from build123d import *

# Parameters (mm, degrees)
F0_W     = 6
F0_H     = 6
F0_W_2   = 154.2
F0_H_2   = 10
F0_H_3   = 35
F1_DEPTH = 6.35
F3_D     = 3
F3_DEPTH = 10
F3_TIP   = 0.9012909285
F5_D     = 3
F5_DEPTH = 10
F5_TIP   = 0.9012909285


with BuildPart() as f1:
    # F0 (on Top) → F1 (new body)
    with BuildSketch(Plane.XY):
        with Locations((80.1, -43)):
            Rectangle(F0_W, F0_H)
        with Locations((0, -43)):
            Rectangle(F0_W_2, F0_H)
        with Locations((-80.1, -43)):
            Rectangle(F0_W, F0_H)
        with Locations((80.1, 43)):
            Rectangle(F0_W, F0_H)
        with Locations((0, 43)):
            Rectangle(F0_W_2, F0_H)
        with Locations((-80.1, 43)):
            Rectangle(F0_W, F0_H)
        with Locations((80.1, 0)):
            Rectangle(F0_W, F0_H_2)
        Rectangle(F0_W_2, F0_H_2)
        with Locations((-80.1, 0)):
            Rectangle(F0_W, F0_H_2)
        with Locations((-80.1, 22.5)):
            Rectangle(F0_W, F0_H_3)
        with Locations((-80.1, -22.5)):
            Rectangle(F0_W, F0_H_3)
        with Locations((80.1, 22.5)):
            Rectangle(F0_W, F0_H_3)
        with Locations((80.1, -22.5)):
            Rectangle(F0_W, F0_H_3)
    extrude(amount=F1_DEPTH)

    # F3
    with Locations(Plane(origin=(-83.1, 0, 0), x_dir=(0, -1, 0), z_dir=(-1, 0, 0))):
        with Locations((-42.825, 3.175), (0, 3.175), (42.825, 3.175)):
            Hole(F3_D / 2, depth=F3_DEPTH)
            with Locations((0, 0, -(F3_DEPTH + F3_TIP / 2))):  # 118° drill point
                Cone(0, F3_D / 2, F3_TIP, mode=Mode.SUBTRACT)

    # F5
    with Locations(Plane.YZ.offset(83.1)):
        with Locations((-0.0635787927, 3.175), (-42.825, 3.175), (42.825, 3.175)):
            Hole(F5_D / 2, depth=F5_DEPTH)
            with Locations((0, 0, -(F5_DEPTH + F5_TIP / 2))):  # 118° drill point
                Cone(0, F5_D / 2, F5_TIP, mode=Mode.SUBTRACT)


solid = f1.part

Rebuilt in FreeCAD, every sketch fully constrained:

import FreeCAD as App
import Part
import Sketcher
from FreeCAD import Vector
Q = App.Units.Quantity


def add_polygon(sketch, points):
    """Adds a closed chain of lines whose ends are joined by coincident constraints."""
    first, n = sketch.GeometryCount, len(points)
    for a, b in zip(points, points[1:] + points[:1]):
        sketch.addGeometry(Part.LineSegment(App.Vector(*a, 0), App.Vector(*b, 0)), False)
    for i in range(n):
        sketch.addConstraint(Sketcher.Constraint("Coincident", first + i, 2, first + (i + 1) % n, 1))

doc = App.newDocument("Part")
params = doc.addObject("Spreadsheet::Sheet", "Params")
for row, (alias, value) in enumerate([
    ("sketch1_height", "92 mm"),
    ("sketch1_height2", "35 mm"),
    ("sketch1_width", "166.2 mm"),
    ("sketch1_width2", "154.2 mm"),
    ("pad1_length", "6.35 mm"),
    ("sketch2_diameter", "3 mm"),
    ("hole_diameter", "3 mm"),
    ("hole_depth", "10 mm"),
    ("sketch3_diameter", "3 mm"),
    ("hole2_diameter", "3 mm"),
    ("hole2_depth", "10 mm"),
], start=1):
    params.set(f"A{row}", alias)
    params.set(f"B{row}", "=" + value)
    params.setAlias(f"B{row}", alias)

body = doc.addObject("PartDesign::Body", "Body")

sketch1 = doc.addObject("Sketcher::SketchObject", "Sketch")
body.addObject(sketch1)
sketch1.AttachmentSupport = (doc.XY_Plane, [""])
sketch1.MapMode = "FlatFace"
add_polygon(sketch1, [(83, -46), (83, 46), (-83, 46), (-83, -46)])
add_polygon(sketch1, [(77, -40), (-77, -40), (-77, -5), (77, -5)])
add_polygon(sketch1, [(77, 5), (-77, 5), (-77, 40), (77, 40)])
sketch1.addConstraint(Sketcher.Constraint("Vertical", 0))
sketch1.addConstraint(Sketcher.Constraint("Horizontal", 1))
sketch1.addConstraint(Sketcher.Constraint("Vertical", 2))
sketch1.addConstraint(Sketcher.Constraint("Horizontal", 3))
sketch1.addConstraint(Sketcher.Constraint("Horizontal", 4))
sketch1.addConstraint(Sketcher.Constraint("Vertical", 5))
sketch1.addConstraint(Sketcher.Constraint("Horizontal", 6))
sketch1.addConstraint(Sketcher.Constraint("Vertical", 7))
sketch1.addConstraint(Sketcher.Constraint("Horizontal", 8))
sketch1.addConstraint(Sketcher.Constraint("Vertical", 9))
sketch1.addConstraint(Sketcher.Constraint("Horizontal", 10))
sketch1.addConstraint(Sketcher.Constraint("Vertical", 11))
sketch1.addConstraint(Sketcher.Constraint("Symmetric", 0, 2, 2, 2, -1, 1))
sketch1.addConstraint(Sketcher.Constraint("Symmetric", 6, 2, 8, 2, -1, 1))
sketch1.addConstraint(Sketcher.Constraint("Symmetric", 4, 2, 10, 2, -1, 1))
sketch1.addConstraint(Sketcher.Constraint("Vertical", 5, 2, 8, 2))
sketch1.addConstraint(Sketcher.Constraint("DistanceY", 0, 1, 0, 2, Q("92 mm")))
sketch1.addConstraint(Sketcher.Constraint("DistanceY", 5, 1, 5, 2, Q("35 mm")))
sketch1.addConstraint(Sketcher.Constraint("DistanceX", 1, 2, 1, 1, Q("166.2 mm")))
sketch1.addConstraint(Sketcher.Constraint("DistanceX", 4, 2, 4, 1, Q("154.2 mm")))
sketch1.addConstraint(Sketcher.Constraint("DistanceY", 4, 2, -1, 1, Q("40 mm")))
sketch1.setExpression("Constraints[28]", "Params.sketch1_height")
sketch1.setExpression("Constraints[29]", "Params.sketch1_height2")
sketch1.setExpression("Constraints[30]", "Params.sketch1_width")
sketch1.setExpression("Constraints[31]", "Params.sketch1_width2")
pad1 = doc.addObject("PartDesign::Pad", "Pad")
body.addObject(pad1)
pad1.Profile = sketch1
pad1.setExpression("Length", "Params.pad1_length")

sketch2 = doc.addObject("Sketcher::SketchObject", "Sketch001")
body.addObject(sketch2)
sketch2.AttachmentSupport = (doc.YZ_Plane, [""])
sketch2.MapMode = "FlatFace"
sketch2.AttachmentOffset = App.Placement(Vector(0, 0, -83.1), App.Rotation())
sketch2.addGeometry(Part.Circle(Vector(42.8, 3.2, 0), Vector(0, 0, 1), 1.5), False)
sketch2.addGeometry(Part.Circle(Vector(0, 3.2, 0), Vector(0, 0, 1), 1.5), False)
sketch2.addGeometry(Part.Circle(Vector(-42.8, 3.2, 0), Vector(0, 0, 1), 1.5), False)
sketch2.addConstraint(Sketcher.Constraint("Equal", 0, 1))
sketch2.addConstraint(Sketcher.Constraint("Equal", 1, 2))
sketch2.addConstraint(Sketcher.Constraint("Symmetric", 0, 3, 2, 3, -2))
sketch2.addConstraint(Sketcher.Constraint("PointOnObject", 1, 3, -2))
sketch2.addConstraint(Sketcher.Constraint("Horizontal", 0, 3, 1, 3))
sketch2.addConstraint(Sketcher.Constraint("Diameter", 0, Q("3 mm")))
sketch2.addConstraint(Sketcher.Constraint("DistanceX", 2, 3, 0, 3, Q("85.65 mm")))
sketch2.addConstraint(Sketcher.Constraint("DistanceY", -1, 1, 0, 3, Q("3.175 mm")))
sketch2.setExpression("Constraints[5]", "Params.sketch2_diameter")
doc.recompute()
hole = doc.addObject("PartDesign::Hole", "Hole")
body.addObject(hole)
hole.Profile = sketch2
hole.ThreadType = "None"
hole.setExpression("Diameter", "Params.hole_diameter")
hole.DepthType = "Dimension"
hole.setExpression("Depth", "Params.hole_depth")
hole.DrillPoint = "Angled"
hole.DrillPointAngle = 118
hole.Reversed = True

sketch3 = doc.addObject("Sketcher::SketchObject", "Sketch002")
body.addObject(sketch3)
sketch3.AttachmentSupport = (doc.YZ_Plane, [""])
sketch3.MapMode = "FlatFace"
sketch3.AttachmentOffset = App.Placement(Vector(0, 0, 83.1), App.Rotation())
sketch3.addGeometry(Part.Circle(Vector(-0.1, 3.2, 0), Vector(0, 0, 1), 1.5), False)
sketch3.addGeometry(Part.Circle(Vector(-42.8, 3.2, 0), Vector(0, 0, 1), 1.5), False)
sketch3.addGeometry(Part.Circle(Vector(42.8, 3.2, 0), Vector(0, 0, 1), 1.5), False)
sketch3.addConstraint(Sketcher.Constraint("Equal", 0, 1))
sketch3.addConstraint(Sketcher.Constraint("Equal", 1, 2))
sketch3.addConstraint(Sketcher.Constraint("Symmetric", 1, 3, 2, 3, -2))
sketch3.addConstraint(Sketcher.Constraint("Horizontal", 0, 3, 1, 3))
sketch3.addConstraint(Sketcher.Constraint("Diameter", 0, Q("3 mm")))
sketch3.addConstraint(Sketcher.Constraint("DistanceX", 1, 3, 2, 3, Q("85.65 mm")))
sketch3.addConstraint(Sketcher.Constraint("DistanceY", -1, 1, 0, 3, Q("3.175 mm")))
sketch3.addConstraint(Sketcher.Constraint("DistanceX", 0, 3, -1, 1, Q("0.063579 mm")))
sketch3.setExpression("Constraints[4]", "Params.sketch3_diameter")
doc.recompute()
hole2 = doc.addObject("PartDesign::Hole", "Hole001")
body.addObject(hole2)
hole2.Profile = sketch3
hole2.ThreadType = "None"
hole2.setExpression("Diameter", "Params.hole2_diameter")
hole2.DepthType = "Dimension"
hole2.setExpression("Depth", "Params.hole2_depth")
hole2.DrillPoint = "Angled"
hole2.DrillPointAngle = 118

doc.recompute()
